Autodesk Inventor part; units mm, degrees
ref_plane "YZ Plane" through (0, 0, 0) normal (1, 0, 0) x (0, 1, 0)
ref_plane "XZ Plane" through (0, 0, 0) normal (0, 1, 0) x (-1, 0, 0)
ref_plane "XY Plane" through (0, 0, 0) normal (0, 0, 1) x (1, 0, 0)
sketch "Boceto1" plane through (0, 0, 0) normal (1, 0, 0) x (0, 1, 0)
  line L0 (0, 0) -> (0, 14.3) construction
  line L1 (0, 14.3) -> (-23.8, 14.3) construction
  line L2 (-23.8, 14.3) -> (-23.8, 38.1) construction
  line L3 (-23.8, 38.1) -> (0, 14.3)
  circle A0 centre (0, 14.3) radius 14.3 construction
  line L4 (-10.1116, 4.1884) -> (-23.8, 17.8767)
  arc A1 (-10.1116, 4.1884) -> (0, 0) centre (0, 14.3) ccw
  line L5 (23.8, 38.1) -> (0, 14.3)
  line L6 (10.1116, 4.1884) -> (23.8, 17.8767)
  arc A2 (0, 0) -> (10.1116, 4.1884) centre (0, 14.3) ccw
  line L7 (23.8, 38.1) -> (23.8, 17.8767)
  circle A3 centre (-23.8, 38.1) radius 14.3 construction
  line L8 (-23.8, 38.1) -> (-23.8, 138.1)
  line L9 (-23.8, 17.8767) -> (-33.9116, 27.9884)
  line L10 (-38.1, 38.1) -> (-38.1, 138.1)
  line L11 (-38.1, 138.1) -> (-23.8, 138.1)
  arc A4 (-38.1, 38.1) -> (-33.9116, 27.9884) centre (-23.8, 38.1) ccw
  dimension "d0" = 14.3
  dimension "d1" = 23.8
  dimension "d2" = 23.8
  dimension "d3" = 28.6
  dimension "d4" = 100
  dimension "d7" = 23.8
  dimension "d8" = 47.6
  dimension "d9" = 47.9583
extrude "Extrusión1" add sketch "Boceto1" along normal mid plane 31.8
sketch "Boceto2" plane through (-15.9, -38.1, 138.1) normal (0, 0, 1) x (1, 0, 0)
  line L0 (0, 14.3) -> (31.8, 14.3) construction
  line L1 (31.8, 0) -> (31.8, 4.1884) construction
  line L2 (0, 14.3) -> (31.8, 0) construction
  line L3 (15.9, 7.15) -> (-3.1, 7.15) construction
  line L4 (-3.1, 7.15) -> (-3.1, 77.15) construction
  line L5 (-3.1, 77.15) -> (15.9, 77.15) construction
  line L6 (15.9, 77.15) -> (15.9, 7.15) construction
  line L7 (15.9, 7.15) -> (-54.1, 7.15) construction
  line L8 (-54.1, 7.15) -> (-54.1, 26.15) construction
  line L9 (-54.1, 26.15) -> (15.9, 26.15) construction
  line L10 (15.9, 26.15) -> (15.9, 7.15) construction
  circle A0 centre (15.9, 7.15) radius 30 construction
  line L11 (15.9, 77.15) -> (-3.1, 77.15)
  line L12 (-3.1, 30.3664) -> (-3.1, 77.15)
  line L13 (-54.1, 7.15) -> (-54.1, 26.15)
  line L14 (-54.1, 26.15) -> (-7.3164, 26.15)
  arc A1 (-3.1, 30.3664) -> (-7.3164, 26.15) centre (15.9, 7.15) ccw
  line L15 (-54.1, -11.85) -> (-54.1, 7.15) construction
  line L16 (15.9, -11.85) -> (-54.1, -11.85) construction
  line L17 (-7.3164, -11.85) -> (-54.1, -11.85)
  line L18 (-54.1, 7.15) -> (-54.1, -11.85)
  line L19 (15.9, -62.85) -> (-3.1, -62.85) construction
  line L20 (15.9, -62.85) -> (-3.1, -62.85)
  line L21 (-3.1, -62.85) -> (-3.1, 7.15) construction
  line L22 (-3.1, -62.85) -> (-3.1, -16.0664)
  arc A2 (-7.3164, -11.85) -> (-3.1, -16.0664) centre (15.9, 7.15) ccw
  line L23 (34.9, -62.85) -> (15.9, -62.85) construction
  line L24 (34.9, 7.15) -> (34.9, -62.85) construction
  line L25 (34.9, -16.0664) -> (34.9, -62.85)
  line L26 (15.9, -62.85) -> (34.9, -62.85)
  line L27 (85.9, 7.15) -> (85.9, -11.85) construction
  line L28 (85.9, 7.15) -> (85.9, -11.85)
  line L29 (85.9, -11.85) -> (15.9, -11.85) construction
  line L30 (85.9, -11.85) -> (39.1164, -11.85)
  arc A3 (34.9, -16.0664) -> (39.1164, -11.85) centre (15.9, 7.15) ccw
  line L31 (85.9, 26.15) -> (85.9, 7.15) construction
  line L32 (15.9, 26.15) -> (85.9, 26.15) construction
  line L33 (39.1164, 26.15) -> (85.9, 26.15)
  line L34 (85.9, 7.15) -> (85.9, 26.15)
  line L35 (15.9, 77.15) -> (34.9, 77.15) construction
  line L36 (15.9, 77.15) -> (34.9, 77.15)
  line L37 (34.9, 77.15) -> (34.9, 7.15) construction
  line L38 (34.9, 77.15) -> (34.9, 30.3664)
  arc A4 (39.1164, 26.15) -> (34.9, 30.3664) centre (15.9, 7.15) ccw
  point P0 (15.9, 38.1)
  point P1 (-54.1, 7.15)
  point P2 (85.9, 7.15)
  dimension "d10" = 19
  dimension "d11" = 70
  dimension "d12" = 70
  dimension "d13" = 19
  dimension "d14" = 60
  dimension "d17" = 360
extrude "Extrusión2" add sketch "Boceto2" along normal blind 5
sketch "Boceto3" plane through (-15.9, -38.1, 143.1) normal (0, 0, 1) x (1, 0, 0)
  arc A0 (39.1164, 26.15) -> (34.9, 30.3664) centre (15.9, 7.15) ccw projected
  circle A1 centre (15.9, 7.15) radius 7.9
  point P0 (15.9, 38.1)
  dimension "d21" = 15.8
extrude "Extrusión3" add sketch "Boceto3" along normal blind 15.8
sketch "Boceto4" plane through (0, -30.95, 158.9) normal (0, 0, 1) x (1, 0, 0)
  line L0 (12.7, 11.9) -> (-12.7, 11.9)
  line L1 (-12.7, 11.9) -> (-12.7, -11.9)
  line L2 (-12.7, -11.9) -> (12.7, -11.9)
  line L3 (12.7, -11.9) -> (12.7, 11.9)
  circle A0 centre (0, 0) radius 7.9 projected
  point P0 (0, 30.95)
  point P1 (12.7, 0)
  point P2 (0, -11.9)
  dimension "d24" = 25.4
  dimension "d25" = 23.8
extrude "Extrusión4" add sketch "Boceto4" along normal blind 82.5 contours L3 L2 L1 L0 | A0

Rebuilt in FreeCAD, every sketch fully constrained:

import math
import FreeCAD as App
import Part
import Sketcher
from FreeCAD import Vector


def add_polygon(sketch, points):
    """Adds a closed chain of lines whose ends are joined by coincident constraints."""
    first, n = sketch.GeometryCount, len(points)
    for a, b in zip(points, points[1:] + points[:1]):
        sketch.addGeometry(Part.LineSegment(App.Vector(*a, 0), App.Vector(*b, 0)), False)
    for i in range(n):
        sketch.addConstraint(Sketcher.Constraint("Coincident", first + i, 2, first + (i + 1) % n, 1))

doc = App.newDocument("Part")
body = doc.addObject("PartDesign::Body", "Body")

# Sketch on YZ plane
sketch1 = body.newObject("Sketcher::SketchObject", "Sketch")
sketch1.AttachmentSupport = (doc.getObject("YZ_Plane"), [""])
sketch1.MapMode = "FlatFace"
sketch1.addGeometry(Part.LineSegment(Vector(0, 14, 0), Vector(-24, 38, 0)), False)
sketch1.addGeometry(Part.LineSegment(Vector(-24, 38, 0), Vector(-24, 138, 0)), False)
sketch1.addGeometry(Part.LineSegment(Vector(-24, 138, 0), Vector(-38, 138, 0)), False)
sketch1.addGeometry(Part.LineSegment(Vector(-38, 138, 0), Vector(-38, 38, 0)), False)
sketch1.addGeometry(Part.ArcOfCircle(Part.Circle(Vector(-24, 38, 0), Vector(0, 0, 1), 14), math.radians(180), math.radians(225)), False)
sketch1.addGeometry(Part.LineSegment(Vector(-34, 28, 0), Vector(-24, 18, 0)), False)
sketch1.addGeometry(Part.LineSegment(Vector(-24, 18, 0), Vector(-10, 4, 0)), False)
sketch1.addGeometry(Part.ArcOfCircle(Part.Circle(Vector(0, 14, 0), Vector(0, 0, 1), 14), math.radians(-135), math.radians(-90)), False)
sketch1.addGeometry(Part.ArcOfCircle(Part.Circle(Vector(0, 14, 0), Vector(0, 0, 1), 14), math.radians(-90), math.radians(-45)), False)
sketch1.addGeometry(Part.LineSegment(Vector(10, 4, 0), Vector(24, 18, 0)), False)
sketch1.addGeometry(Part.LineSegment(Vector(24, 18, 0), Vector(24, 38, 0)), False)
sketch1.addGeometry(Part.LineSegment(Vector(24, 38, 0), Vector(0, 14, 0)), False)
sketch1.addConstraint(Sketcher.Constraint("Coincident", 0, 2, 1, 1))
sketch1.addConstraint(Sketcher.Constraint("Coincident", 1, 2, 2, 1))
sketch1.addConstraint(Sketcher.Constraint("Coincident", 2, 2, 3, 1))
sketch1.addConstraint(Sketcher.Constraint("Tangent", 3, 2, 4, 1))
sketch1.addConstraint(Sketcher.Constraint("Tangent", 4, 2, 5, 1))
sketch1.addConstraint(Sketcher.Constraint("Coincident", 5, 2, 6, 1))
sketch1.addConstraint(Sketcher.Constraint("Tangent", 6, 2, 7, 1))
sketch1.addConstraint(Sketcher.Constraint("Tangent", 7, 2, 8, 1))
sketch1.addConstraint(Sketcher.Constraint("Tangent", 8, 2, 9, 1))
sketch1.addConstraint(Sketcher.Constraint("Coincident", 9, 2, 10, 1))
sketch1.addConstraint(Sketcher.Constraint("Coincident", 10, 2, 11, 1))
sketch1.addConstraint(Sketcher.Constraint("Coincident", 11, 2, 0, 1))
sketch1.addConstraint(Sketcher.Constraint("Vertical", 1))
sketch1.addConstraint(Sketcher.Constraint("Horizontal", 2))
sketch1.addConstraint(Sketcher.Constraint("Vertical", 3))
sketch1.addConstraint(Sketcher.Constraint("Vertical", 10))
sketch1.addConstraint(Sketcher.Constraint("Coincident", 7, 2, -1, 1))
sketch1.addConstraint(Sketcher.Constraint("Coincident", 0, 2, 4, 3))
sketch1.addConstraint(Sketcher.Constraint("Coincident", 11, 2, 7, 3))
sketch1.addConstraint(Sketcher.Constraint("Equal", 4, 7))
sketch1.addConstraint(Sketcher.Constraint("Equal", 7, 8))
sketch1.addConstraint(Sketcher.Constraint("Symmetric", 6, 2, 8, 2, -2))
sketch1.addConstraint(Sketcher.Constraint("Symmetric", 0, 2, 10, 2, -2))
sketch1.addConstraint(Sketcher.Constraint("Parallel", 0, 5))
sketch1.addConstraint(Sketcher.Constraint("Perpendicular", 6, 9))
sketch1.addConstraint(Sketcher.Constraint("Horizontal", 5, 2, 9, 2))
sketch1.addConstraint(Sketcher.Constraint("Radius", 4, 14.3))
sketch1.addConstraint(Sketcher.Constraint("DistanceY", 1, 1, 1, 2, 100.0))
sketch1.addConstraint(Sketcher.Constraint("DistanceX", 4, 3, -1, 1, 23.8))
pad1 = body.newObject("PartDesign::Pad", "Pad")
pad1.Profile = sketch1
pad1.Length = 31.8
pad1.Midplane = True

# Sketch on XY plane
sketch2 = body.newObject("Sketcher::SketchObject", "Sketch001")
sketch2.AttachmentSupport = (doc.getObject("XY_Plane"), [""])
sketch2.MapMode = "FlatFace"
sketch2.AttachmentOffset = App.Placement(Vector(0, 0, 138.1), App.Rotation())
sketch2.addGeometry(Part.LineSegment(Vector(19, 39, 0), Vector(-19, 39, 0)), False)
sketch2.addGeometry(Part.LineSegment(Vector(-19, 39, 0), Vector(-19, -8, 0)), False)
sketch2.addGeometry(Part.ArcOfCircle(Part.Circle(Vector(0, -31, 0), Vector(0, 0, 1), 30), math.radians(129.3), math.radians(140.7)), False)
sketch2.addGeometry(Part.LineSegment(Vector(-23, -12, 0), Vector(-70, -12, 0)), False)
sketch2.addGeometry(Part.LineSegment(Vector(-70, -12, 0), Vector(-70, -50, 0)), False)
sketch2.addGeometry(Part.LineSegment(Vector(-70, -50, 0), Vector(-23, -50, 0)), False)
sketch2.addGeometry(Part.ArcOfCircle(Part.Circle(Vector(0, -31, 0), Vector(0, 0, 1), 30), math.radians(-140.7), math.radians(-129.3)), False)
sketch2.addGeometry(Part.LineSegment(Vector(-19, -54, 0), Vector(-19, -101, 0)), False)
sketch2.addGeometry(Part.LineSegment(Vector(-19, -101, 0), Vector(19, -101, 0)), False)
sketch2.addGeometry(Part.LineSegment(Vector(19, -101, 0), Vector(19, -54, 0)), False)
sketch2.addGeometry(Part.ArcOfCircle(Part.Circle(Vector(0, -31, 0), Vector(0, 0, 1), 30), math.radians(-50.7), math.radians(-39.3)), False)
sketch2.addGeometry(Part.LineSegment(Vector(23, -50, 0), Vector(70, -50, 0)), False)
sketch2.addGeometry(Part.LineSegment(Vector(70, -50, 0), Vector(70, -12, 0)), False)
sketch2.addGeometry(Part.LineSegment(Vector(70, -12, 0), Vector(23, -12, 0)), False)
sketch2.addGeometry(Part.ArcOfCircle(Part.Circle(Vector(0, -31, 0), Vector(0, 0, 1), 30), math.radians(39.3), math.radians(50.7)), False)
sketch2.addGeometry(Part.LineSegment(Vector(19, -8, 0), Vector(19, 39, 0)), False)
sketch2.addConstraint(Sketcher.Constraint("Coincident", 0, 2, 1, 1))
sketch2.addConstraint(Sketcher.Constraint("Coincident", 1, 2, 2, 1))
sketch2.addConstraint(Sketcher.Constraint("Coincident", 2, 2, 3, 1))
sketch2.addConstraint(Sketcher.Constraint("Coincident", 3, 2, 4, 1))
sketch2.addConstraint(Sketcher.Constraint("Coincident", 4, 2, 5, 1))
sketch2.addConstraint(Sketcher.Constraint("Coincident", 5, 2, 6, 1))
sketch2.addConstraint(Sketcher.Constraint("Coincident", 6, 2, 7, 1))
sketch2.addConstraint(Sketcher.Constraint("Coincident", 7, 2, 8, 1))
sketch2.addConstraint(Sketcher.Constraint("Coincident", 8, 2, 9, 1))
sketch2.addConstraint(Sketcher.Constraint("Coincident", 9, 2, 10, 1))
sketch2.addConstraint(Sketcher.Constraint("Coincident", 10, 2, 11, 1))
sketch2.addConstraint(Sketcher.Constraint("Coincident", 11, 2, 12, 1))
sketch2.addConstraint(Sketcher.Constraint("Coincident", 12, 2, 13, 1))
sketch2.addConstraint(Sketcher.Constraint("Coincident", 13, 2, 14, 1))
sketch2.addConstraint(Sketcher.Constraint("Coincident", 14, 2, 15, 1))
sketch2.addConstraint(Sketcher.Constraint("Coincident", 15, 2, 0, 1))
sketch2.addConstraint(Sketcher.Constraint("Horizontal", 0))
sketch2.addConstraint(Sketcher.Constraint("Vertical", 1))
sketch2.addConstraint(Sketcher.Constraint("Horizontal", 3))
sketch2.addConstraint(Sketcher.Constraint("Vertical", 4))
sketch2.addConstraint(Sketcher.Constraint("Horizontal", 5))
sketch2.addConstraint(Sketcher.Constraint("Vertical", 7))
sketch2.addConstraint(Sketcher.Constraint("Horizontal", 8))
sketch2.addConstraint(Sketcher.Constraint("Vertical", 9))
sketch2.addConstraint(Sketcher.Constraint("Horizontal", 11))
sketch2.addConstraint(Sketcher.Constraint("Vertical", 12))
sketch2.addConstraint(Sketcher.Constraint("Horizontal", 13))
sketch2.addConstraint(Sketcher.Constraint("Vertical", 15))
sketch2.addConstraint(Sketcher.Constraint("Coincident", 6, 3, 2, 3))
sketch2.addConstraint(Sketcher.Constraint("Coincident", 10, 3, 2, 3))
sketch2.addConstraint(Sketcher.Constraint("Coincident", 14, 3, 2, 3))
sketch2.addConstraint(Sketcher.Constraint("Equal", 2, 6))
sketch2.addConstraint(Sketcher.Constraint("Equal", 6, 10))
sketch2.addConstraint(Sketcher.Constraint("Equal", 10, 14))
sketch2.addConstraint(Sketcher.Constraint("Symmetric", 6, 2, 9, 2, -2))
sketch2.addConstraint(Sketcher.Constraint("Symmetric", 4, 2, 11, 2, -2))
sketch2.addConstraint(Sketcher.Constraint("Horizontal", 3, 2, 12, 2))
sketch2.addConstraint(Sketcher.Constraint("Horizontal", 1, 2, 14, 2))
sketch2.addConstraint(Sketcher.Constraint("Vertical", 2, 2, 5, 2))
sketch2.addConstraint(Sketcher.Constraint("Vertical", 1, 2, 6, 2))
sketch2.addConstraint(Sketcher.Constraint("Equal", 13, 1))
sketch2.addConstraint(Sketcher.Constraint("Equal", 8, 4))
sketch2.addConstraint(Sketcher.Constraint("Equal", 1, 7))
sketch2.addConstraint(Sketcher.Constraint("Radius", 2, 30.0))
sketch2.addConstraint(Sketcher.Constraint("DistanceX", 0, 2, -1, 1, 19.0))
sketch2.addConstraint(Sketcher.Constraint("DistanceX", 3, 2, -1, 1, 70.0))
sketch2.addConstraint(Sketcher.Constraint("DistanceY", 2, 3, -1, 1, 30.95))
pad2 = body.newObject("PartDesign::Pad", "Pad001")
pad2.Profile = sketch2
pad2.Length = 5

# Sketch on XY plane
sketch3 = body.newObject("Sketcher::SketchObject", "Sketch002")
sketch3.AttachmentSupport = (doc.getObject("XY_Plane"), [""])
sketch3.MapMode = "FlatFace"
sketch3.AttachmentOffset = App.Placement(Vector(0, 0, 143.1), App.Rotation())
sketch3.addGeometry(Part.Circle(Vector(0, -31, 0), Vector(0, 0, 1), 8), False)
sketch3.addConstraint(Sketcher.Constraint("PointOnObject", 0, 3, -2))
sketch3.addConstraint(Sketcher.Constraint("Diameter", 0, 15.8))
sketch3.addConstraint(Sketcher.Constraint("DistanceY", 0, 3, -1, 1, 30.95))
pad3 = body.newObject("PartDesign::Pad", "Pad002")
pad3.Profile = sketch3
pad3.Length = 15.8

# Sketch on XY plane
sketch4 = body.newObject("Sketcher::SketchObject", "Sketch003")
sketch4.AttachmentSupport = (doc.getObject("XY_Plane"), [""])
sketch4.MapMode = "FlatFace"
sketch4.AttachmentOffset = App.Placement(Vector(0, 0, 158.9), App.Rotation())
add_polygon(sketch4, [(13, -43), (13, -19), (-13, -19), (-13, -43)])  # lines 0-3
sketch4.addConstraint(Sketcher.Constraint("Vertical", 0))
sketch4.addConstraint(Sketcher.Constraint("Horizontal", 1))
sketch4.addConstraint(Sketcher.Constraint("Vertical", 2))
sketch4.addConstraint(Sketcher.Constraint("Horizontal", 3))
sketch4.addConstraint(Sketcher.Constraint("DistanceX", 1, 2, 1, 1, 25.4))
sketch4.addConstraint(Sketcher.Constraint("DistanceY", 0, 1, 0, 2, 23.8))
sketch4.addConstraint(Sketcher.Constraint("DistanceX", -1, 1, 0, 2, 12.7))
sketch4.addConstraint(Sketcher.Constraint("DistanceY", 0, 2, -1, 1, 19.05))
pad4 = body.newObject("PartDesign::Pad", "Pad003")
pad4.Profile = sketch4
pad4.Length = 82.5

doc.recompute()
